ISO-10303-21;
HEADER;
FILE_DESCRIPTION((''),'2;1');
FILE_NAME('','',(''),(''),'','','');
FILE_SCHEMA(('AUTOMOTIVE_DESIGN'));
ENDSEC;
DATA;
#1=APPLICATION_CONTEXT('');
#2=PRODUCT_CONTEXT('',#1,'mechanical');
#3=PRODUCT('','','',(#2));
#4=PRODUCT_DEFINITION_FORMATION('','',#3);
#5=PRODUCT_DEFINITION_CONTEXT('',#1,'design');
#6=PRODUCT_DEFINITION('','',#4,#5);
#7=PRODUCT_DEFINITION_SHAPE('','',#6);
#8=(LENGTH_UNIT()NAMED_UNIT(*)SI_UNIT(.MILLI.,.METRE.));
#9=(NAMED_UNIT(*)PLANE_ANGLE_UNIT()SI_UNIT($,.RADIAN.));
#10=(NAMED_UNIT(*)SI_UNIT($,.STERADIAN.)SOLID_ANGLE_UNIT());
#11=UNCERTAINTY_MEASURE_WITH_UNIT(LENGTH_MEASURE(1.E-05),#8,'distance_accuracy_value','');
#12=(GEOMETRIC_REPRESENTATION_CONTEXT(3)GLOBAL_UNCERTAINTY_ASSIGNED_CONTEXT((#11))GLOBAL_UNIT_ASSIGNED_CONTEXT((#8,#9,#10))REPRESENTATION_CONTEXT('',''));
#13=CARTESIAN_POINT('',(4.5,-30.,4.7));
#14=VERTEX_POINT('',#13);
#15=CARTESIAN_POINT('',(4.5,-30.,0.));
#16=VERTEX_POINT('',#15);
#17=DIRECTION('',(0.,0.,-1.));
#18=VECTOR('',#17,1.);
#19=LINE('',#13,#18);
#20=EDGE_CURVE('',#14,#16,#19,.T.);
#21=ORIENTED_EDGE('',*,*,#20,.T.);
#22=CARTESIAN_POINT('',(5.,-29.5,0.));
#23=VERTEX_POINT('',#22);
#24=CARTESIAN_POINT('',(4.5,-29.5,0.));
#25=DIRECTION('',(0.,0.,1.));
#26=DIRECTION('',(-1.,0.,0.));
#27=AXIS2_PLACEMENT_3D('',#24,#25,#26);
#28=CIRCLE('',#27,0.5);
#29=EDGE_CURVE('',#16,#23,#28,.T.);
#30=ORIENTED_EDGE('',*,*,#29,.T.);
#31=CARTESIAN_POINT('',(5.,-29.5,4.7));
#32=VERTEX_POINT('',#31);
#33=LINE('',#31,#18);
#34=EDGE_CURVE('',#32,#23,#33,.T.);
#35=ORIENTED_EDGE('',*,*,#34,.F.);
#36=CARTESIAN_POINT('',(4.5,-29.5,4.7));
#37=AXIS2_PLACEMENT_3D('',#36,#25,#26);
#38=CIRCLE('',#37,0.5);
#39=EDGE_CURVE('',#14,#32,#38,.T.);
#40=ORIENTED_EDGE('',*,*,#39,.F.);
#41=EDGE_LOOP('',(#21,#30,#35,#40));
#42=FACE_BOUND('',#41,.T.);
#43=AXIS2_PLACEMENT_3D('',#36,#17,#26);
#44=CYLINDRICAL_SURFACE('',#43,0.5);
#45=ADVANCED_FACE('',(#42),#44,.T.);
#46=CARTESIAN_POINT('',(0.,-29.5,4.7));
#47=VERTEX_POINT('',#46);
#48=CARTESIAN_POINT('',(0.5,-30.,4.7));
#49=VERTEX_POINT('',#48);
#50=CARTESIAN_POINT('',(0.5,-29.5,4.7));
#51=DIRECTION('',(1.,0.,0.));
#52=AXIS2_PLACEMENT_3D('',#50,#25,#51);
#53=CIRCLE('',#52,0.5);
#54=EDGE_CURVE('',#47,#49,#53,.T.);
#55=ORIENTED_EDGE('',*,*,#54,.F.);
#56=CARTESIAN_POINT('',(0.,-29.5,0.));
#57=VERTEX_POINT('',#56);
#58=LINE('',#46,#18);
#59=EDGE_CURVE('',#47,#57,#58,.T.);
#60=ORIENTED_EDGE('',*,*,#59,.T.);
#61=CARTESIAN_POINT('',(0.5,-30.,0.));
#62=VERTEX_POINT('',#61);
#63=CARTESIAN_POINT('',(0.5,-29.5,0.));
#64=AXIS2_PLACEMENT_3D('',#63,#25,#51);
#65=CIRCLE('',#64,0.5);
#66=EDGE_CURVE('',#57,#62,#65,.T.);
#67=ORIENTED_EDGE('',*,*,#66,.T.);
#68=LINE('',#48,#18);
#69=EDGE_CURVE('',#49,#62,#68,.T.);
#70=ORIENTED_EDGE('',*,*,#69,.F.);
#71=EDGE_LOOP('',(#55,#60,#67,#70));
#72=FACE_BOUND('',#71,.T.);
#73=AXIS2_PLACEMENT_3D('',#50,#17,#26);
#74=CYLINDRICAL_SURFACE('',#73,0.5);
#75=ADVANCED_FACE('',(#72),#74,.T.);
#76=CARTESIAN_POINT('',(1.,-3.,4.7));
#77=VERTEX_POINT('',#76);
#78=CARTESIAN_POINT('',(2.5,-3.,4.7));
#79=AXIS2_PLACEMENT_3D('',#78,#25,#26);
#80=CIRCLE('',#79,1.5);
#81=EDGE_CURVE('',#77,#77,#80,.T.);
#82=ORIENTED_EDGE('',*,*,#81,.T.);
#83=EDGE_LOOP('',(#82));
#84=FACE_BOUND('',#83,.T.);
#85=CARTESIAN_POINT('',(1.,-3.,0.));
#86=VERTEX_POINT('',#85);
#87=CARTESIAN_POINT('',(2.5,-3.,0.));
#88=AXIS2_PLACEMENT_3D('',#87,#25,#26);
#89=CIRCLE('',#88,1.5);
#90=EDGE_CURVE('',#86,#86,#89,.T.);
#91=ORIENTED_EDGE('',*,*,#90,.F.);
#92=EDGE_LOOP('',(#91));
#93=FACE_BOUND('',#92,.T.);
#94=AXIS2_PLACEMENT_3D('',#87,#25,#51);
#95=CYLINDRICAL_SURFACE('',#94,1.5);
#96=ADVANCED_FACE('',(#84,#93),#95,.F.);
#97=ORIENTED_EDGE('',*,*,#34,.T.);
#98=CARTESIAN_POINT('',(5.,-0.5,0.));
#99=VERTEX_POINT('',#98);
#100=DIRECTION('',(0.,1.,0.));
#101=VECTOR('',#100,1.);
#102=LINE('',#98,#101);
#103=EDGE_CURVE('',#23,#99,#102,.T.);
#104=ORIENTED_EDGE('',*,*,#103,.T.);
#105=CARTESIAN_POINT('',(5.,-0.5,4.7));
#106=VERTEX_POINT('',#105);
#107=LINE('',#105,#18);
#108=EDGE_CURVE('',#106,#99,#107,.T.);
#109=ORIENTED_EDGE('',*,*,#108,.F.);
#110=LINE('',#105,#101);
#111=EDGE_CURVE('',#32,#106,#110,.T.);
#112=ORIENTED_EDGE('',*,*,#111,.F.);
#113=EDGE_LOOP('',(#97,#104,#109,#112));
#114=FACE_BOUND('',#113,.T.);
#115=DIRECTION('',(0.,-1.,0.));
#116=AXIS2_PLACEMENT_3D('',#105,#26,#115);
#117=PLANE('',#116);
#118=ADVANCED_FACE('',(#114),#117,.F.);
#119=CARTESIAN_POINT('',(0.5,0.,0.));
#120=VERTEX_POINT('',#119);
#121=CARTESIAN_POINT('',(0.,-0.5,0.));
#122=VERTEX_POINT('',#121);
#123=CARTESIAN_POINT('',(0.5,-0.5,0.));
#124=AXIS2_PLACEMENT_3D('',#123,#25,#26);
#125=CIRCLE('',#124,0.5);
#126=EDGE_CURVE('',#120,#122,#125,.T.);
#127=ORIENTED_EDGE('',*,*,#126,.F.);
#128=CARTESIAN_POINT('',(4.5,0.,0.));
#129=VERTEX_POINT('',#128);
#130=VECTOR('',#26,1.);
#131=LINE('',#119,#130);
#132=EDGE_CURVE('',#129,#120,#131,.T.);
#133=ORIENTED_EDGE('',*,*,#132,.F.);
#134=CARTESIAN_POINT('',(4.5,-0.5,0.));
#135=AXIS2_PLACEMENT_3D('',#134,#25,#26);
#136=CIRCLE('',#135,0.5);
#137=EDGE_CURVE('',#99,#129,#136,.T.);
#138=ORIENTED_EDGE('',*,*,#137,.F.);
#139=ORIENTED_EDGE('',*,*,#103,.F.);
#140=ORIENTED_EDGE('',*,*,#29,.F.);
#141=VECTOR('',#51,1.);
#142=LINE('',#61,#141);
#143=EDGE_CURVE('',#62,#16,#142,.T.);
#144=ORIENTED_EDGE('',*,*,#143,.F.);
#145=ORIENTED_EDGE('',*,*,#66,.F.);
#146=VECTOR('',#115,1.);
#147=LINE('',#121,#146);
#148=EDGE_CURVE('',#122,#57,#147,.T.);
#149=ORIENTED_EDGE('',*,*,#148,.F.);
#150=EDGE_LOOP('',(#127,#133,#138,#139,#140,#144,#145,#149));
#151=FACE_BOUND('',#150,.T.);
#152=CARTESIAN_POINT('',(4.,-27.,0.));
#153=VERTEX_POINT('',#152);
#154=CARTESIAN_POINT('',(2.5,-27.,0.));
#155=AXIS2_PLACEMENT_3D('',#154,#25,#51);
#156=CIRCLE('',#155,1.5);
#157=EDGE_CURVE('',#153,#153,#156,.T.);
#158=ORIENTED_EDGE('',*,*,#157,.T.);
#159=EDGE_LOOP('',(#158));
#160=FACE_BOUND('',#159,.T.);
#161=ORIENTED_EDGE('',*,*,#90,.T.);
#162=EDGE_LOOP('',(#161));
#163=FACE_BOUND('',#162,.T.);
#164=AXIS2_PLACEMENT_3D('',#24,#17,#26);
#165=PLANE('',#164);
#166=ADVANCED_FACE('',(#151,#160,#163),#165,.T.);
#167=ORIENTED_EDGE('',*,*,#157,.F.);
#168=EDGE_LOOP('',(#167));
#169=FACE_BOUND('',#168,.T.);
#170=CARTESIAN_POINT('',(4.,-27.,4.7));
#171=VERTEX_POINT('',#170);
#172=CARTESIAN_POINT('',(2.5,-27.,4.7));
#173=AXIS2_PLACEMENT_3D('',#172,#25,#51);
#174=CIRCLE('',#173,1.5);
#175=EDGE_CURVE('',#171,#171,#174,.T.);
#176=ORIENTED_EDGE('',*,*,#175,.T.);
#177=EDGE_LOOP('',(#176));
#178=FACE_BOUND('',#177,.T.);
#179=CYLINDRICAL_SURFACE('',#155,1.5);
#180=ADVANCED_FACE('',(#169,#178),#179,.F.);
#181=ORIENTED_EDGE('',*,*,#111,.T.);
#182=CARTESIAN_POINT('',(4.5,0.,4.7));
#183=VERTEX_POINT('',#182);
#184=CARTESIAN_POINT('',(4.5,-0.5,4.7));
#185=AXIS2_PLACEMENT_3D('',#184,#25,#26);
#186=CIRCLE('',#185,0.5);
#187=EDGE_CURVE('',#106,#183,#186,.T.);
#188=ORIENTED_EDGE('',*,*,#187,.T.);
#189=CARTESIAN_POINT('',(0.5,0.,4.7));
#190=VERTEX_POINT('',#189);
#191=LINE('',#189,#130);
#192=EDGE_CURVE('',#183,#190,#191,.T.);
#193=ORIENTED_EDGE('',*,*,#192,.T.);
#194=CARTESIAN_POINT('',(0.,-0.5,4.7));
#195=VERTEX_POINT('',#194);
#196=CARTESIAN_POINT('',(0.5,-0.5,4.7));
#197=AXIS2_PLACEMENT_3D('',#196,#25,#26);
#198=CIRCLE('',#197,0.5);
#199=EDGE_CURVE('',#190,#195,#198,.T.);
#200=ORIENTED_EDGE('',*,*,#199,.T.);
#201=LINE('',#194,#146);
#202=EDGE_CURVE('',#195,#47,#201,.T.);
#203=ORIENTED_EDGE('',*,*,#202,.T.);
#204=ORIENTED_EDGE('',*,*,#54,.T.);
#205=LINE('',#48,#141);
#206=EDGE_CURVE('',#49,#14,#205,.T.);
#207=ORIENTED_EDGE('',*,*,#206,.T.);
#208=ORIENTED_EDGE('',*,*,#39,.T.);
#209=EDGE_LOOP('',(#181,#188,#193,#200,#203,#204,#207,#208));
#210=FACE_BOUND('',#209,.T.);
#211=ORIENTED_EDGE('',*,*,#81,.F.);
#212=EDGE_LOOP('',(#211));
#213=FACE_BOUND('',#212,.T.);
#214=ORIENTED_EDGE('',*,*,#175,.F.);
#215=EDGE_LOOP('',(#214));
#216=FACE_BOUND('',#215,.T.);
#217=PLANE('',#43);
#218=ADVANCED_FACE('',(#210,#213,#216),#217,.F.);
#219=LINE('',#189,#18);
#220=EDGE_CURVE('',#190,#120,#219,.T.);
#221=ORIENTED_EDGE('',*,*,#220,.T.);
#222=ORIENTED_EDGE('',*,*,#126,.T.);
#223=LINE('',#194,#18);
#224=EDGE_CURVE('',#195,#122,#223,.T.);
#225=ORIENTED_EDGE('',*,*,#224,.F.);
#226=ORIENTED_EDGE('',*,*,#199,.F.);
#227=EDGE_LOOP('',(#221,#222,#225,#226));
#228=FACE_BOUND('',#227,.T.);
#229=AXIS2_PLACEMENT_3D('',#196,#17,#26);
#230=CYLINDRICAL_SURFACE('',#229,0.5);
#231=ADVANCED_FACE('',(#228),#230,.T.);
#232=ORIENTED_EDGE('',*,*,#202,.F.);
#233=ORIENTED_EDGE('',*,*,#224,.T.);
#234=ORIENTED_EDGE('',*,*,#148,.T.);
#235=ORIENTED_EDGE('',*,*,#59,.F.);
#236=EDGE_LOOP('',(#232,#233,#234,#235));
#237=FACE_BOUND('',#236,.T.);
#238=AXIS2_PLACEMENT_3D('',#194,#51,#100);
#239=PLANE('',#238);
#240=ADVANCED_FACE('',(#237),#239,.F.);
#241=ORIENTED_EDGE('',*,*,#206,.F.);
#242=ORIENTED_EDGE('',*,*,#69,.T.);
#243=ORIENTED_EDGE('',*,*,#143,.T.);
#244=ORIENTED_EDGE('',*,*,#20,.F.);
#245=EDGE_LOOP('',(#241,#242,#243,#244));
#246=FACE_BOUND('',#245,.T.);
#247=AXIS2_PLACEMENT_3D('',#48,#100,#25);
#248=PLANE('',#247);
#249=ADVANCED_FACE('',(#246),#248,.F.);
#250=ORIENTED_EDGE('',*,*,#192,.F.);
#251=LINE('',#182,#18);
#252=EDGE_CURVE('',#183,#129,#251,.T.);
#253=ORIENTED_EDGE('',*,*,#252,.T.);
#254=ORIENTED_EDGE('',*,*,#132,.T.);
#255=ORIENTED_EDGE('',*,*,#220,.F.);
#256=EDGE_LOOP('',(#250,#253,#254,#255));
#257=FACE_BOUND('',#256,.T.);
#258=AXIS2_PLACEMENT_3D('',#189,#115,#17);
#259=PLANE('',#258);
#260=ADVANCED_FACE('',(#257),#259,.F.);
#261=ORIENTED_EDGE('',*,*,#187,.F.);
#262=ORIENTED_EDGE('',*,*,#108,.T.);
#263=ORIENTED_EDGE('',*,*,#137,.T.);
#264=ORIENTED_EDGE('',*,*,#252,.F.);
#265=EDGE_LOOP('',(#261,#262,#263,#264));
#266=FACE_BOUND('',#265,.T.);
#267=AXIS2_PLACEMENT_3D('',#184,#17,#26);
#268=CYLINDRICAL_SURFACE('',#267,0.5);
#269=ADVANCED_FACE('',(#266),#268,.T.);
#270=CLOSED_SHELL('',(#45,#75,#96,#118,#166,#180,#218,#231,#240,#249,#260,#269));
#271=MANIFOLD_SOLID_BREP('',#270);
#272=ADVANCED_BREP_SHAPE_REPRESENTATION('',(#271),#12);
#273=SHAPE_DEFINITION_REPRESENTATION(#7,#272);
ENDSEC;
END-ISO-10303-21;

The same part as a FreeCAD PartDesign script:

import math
import FreeCAD as App
import Part
import Sketcher
from FreeCAD import Vector

doc = App.newDocument("Part")
body = doc.addObject("PartDesign::Body", "Body")

sketch1 = body.newObject("Sketcher::SketchObject", "Sketch")
sketch1.AttachmentSupport = (doc.getObject("XY_Plane"), [""])
sketch1.MapMode = "FlatFace"
sketch1.addGeometry([
    Part.LineSegment(Vector(4.5, 0, 0), Vector(0.5, 0, 0)),
    Part.ArcOfCircle(Part.Circle(Vector(0.5, -0.5, 0), Vector(0, 0, 1), 0.5), math.radians(90), math.radians(180)),
    Part.LineSegment(Vector(0, -0.5, 0), Vector(0, -29.5, 0)),
    Part.ArcOfCircle(Part.Circle(Vector(0.5, -29.5, 0), Vector(0, 0, 1), 0.5), math.radians(180), math.radians(270)),
    Part.LineSegment(Vector(0.5, -30, 0), Vector(4.5, -30, 0)),
    Part.ArcOfCircle(Part.Circle(Vector(4.5, -29.5, 0), Vector(0, 0, 1), 0.5), math.radians(-90), math.radians(0)),
    Part.LineSegment(Vector(5, -29.5, 0), Vector(5, -0.5, 0)),
    Part.ArcOfCircle(Part.Circle(Vector(4.5, -0.5, 0), Vector(0, 0, 1), 0.5), math.radians(0), math.radians(90)),
], False)
sketch1.addConstraint([
    Sketcher.Constraint("Tangent", 0, 2, 1, 1),
    Sketcher.Constraint("Tangent", 1, 2, 2, 1),
    Sketcher.Constraint("Tangent", 2, 2, 3, 1),
    Sketcher.Constraint("Tangent", 3, 2, 4, 1),
    Sketcher.Constraint("Tangent", 4, 2, 5, 1),
    Sketcher.Constraint("Tangent", 5, 2, 6, 1),
    Sketcher.Constraint("Tangent", 6, 2, 7, 1),
    Sketcher.Constraint("Tangent", 7, 2, 0, 1),
    Sketcher.Constraint("Horizontal", 0),
    Sketcher.Constraint("Vertical", 2),
    Sketcher.Constraint("Horizontal", 4),
    Sketcher.Constraint("Vertical", 6),
    Sketcher.Constraint("Equal", 1, 3),
    Sketcher.Constraint("Equal", 3, 5),
    Sketcher.Constraint("Equal", 5, 7),
    Sketcher.Constraint("PointOnObject", 0, 2, -1),
    Sketcher.Constraint("PointOnObject", 1, 2, -2),
    Sketcher.Constraint("Radius", 1, 0.5),
    Sketcher.Constraint("DistanceX", 0, 2, 0, 1, 4.0),
    Sketcher.Constraint("DistanceY", 2, 2, 2, 1, 29.0),
])
pad1 = body.newObject("PartDesign::Pad", "Pad")
pad1.Profile = sketch1
pad1.Length = 4.7

sketch2 = body.newObject("Sketcher::SketchObject", "Sketch001")
sketch2.AttachmentSupport = (doc.getObject("XY_Plane"), [""])
sketch2.MapMode = "FlatFace"
sketch2.AttachmentOffset = App.Placement(Vector(0, 0, 4.7), App.Rotation())
sketch2.addGeometry([
    Part.Circle(Vector(2.5, -27, 0), Vector(0, 0, 1), 1.5),
    Part.Circle(Vector(2.5, -3, 0), Vector(0, 0, 1), 1.5),
], False)
sketch2.addConstraint([
    Sketcher.Constraint("Equal", 0, 1),
    Sketcher.Constraint("Vertical", 0, 3, 1, 3),
    Sketcher.Constraint("Diameter", 0, 3.0),
    Sketcher.Constraint("DistanceY", 0, 3, -1, 1, 27.0),
    Sketcher.Constraint("DistanceY", 1, 3, -1, 1, 3.0),
    Sketcher.Constraint("DistanceX", -1, 1, 0, 3, 2.5),
])
pocket1 = body.newObject("PartDesign::Pocket", "Pocket")
pocket1.Profile = sketch2
pocket1.Type = "ThroughAll"

doc.recompute()
